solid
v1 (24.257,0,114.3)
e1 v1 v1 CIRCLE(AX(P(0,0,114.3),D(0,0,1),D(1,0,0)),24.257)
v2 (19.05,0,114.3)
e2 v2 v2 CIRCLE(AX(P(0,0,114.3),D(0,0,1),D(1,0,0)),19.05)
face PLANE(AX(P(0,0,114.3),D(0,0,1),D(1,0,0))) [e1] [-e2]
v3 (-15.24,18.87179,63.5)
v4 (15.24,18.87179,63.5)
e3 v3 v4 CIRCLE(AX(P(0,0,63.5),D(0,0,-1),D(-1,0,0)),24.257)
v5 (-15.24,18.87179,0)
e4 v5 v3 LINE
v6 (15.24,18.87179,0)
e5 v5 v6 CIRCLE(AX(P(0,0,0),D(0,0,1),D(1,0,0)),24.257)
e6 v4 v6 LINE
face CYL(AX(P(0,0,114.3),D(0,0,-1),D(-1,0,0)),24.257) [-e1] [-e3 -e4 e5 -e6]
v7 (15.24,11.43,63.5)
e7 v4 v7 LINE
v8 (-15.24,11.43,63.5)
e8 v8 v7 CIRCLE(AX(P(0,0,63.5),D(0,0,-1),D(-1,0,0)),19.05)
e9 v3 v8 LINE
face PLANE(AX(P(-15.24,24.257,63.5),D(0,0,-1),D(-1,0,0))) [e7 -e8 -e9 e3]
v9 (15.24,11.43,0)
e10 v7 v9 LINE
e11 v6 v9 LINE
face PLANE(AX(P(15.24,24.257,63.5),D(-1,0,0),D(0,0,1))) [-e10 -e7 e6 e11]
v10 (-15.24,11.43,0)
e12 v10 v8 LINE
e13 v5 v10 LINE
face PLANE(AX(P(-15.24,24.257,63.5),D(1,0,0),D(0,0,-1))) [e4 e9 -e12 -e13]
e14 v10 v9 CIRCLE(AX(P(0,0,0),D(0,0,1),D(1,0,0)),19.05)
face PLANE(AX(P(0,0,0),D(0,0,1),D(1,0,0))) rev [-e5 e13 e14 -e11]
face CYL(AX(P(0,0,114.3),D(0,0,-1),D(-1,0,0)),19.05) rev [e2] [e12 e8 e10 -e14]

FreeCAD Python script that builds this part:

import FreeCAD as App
import Part
import Sketcher
from FreeCAD import Vector
Q = App.Units.Quantity

doc = App.newDocument("Part")
body = doc.addObject("PartDesign::Body", "Body")

# Sketch on XY plane
sketch1 = body.newObject("Sketcher::SketchObject", "Sketch")
sketch1.AttachmentSupport = (doc.getObject("XY_Plane"), [""])
sketch1.MapMode = "FlatFace"
sketch1.addGeometry(Part.Circle(Vector(0, 0, 0), Vector(0, 0, 1), 24.257), False)
sketch1.addGeometry(Part.Circle(Vector(0, 0, 0), Vector(0, 0, 1), 19.05), False)
sketch1.addConstraint(Sketcher.Constraint("Coincident", 0, 3, -1, 1))
sketch1.addConstraint(Sketcher.Constraint("Coincident", 1, 3, -1, 1))
sketch1.addConstraint(Sketcher.Constraint("Diameter", 1, Q("1.5 in")))
sketch1.addConstraint(Sketcher.Constraint("Diameter", 0, Q("1.91 in")))
pad1 = body.newObject("PartDesign::Pad", "Pad")
pad1.Profile = sketch1
pad1.Length = Q("4.5 in")

# Sketch on XZ plane
sketch2 = body.newObject("Sketcher::SketchObject", "Sketch001")
sketch2.AttachmentSupport = (doc.getObject("XZ_Plane"), [""])
sketch2.MapMode = "FlatFace"
sketch2.addGeometry(Part.LineSegment(Vector(-15.24, 0, 0), Vector(-15.24, 63.5, 0)), False)
sketch2.addGeometry(Part.LineSegment(Vector(-15.24, 63.5, 0), Vector(15.24, 63.5, 0)), False)
sketch2.addGeometry(Part.LineSegment(Vector(15.24, 63.5, 0), Vector(15.24, 0, 0)), False)
sketch2.addGeometry(Part.LineSegment(Vector(15.24, 0, 0), Vector(-15.24, 0, 0)), False)
sketch2.addConstraint(Sketcher.Constraint("Coincident", 0, 2, 1, 1))
sketch2.addConstraint(Sketcher.Constraint("Coincident", 1, 2, 2, 1))
sketch2.addConstraint(Sketcher.Constraint("Coincident", 2, 2, 3, 1))
sketch2.addConstraint(Sketcher.Constraint("Coincident", 3, 2, 0, 1))
sketch2.addConstraint(Sketcher.Constraint("Vertical", 0))
sketch2.addConstraint(Sketcher.Constraint("Horizontal", 1))
sketch2.addConstraint(Sketcher.Constraint("Vertical", 2))
sketch2.addConstraint(Sketcher.Constraint("Horizontal", 3))
sketch2.addConstraint(Sketcher.Constraint("Symmetric", 2, 2, 3, 2, -1, 1))
sketch2.addConstraint(Sketcher.Constraint("DistanceX", 1, 1, 1, 2, Q("1.2 in")))
sketch2.addConstraint(Sketcher.Constraint("DistanceY", 0, 1, 0, 2, Q("2.5 in")))
pocket1 = body.newObject("PartDesign::Pocket", "Pocket")
pocket1.Profile = sketch2
pocket1.Type = "TwoLengths"
pocket1.Length = 120.336893
pocket1.Length2 = Q("0.1 in")

doc.recompute()
